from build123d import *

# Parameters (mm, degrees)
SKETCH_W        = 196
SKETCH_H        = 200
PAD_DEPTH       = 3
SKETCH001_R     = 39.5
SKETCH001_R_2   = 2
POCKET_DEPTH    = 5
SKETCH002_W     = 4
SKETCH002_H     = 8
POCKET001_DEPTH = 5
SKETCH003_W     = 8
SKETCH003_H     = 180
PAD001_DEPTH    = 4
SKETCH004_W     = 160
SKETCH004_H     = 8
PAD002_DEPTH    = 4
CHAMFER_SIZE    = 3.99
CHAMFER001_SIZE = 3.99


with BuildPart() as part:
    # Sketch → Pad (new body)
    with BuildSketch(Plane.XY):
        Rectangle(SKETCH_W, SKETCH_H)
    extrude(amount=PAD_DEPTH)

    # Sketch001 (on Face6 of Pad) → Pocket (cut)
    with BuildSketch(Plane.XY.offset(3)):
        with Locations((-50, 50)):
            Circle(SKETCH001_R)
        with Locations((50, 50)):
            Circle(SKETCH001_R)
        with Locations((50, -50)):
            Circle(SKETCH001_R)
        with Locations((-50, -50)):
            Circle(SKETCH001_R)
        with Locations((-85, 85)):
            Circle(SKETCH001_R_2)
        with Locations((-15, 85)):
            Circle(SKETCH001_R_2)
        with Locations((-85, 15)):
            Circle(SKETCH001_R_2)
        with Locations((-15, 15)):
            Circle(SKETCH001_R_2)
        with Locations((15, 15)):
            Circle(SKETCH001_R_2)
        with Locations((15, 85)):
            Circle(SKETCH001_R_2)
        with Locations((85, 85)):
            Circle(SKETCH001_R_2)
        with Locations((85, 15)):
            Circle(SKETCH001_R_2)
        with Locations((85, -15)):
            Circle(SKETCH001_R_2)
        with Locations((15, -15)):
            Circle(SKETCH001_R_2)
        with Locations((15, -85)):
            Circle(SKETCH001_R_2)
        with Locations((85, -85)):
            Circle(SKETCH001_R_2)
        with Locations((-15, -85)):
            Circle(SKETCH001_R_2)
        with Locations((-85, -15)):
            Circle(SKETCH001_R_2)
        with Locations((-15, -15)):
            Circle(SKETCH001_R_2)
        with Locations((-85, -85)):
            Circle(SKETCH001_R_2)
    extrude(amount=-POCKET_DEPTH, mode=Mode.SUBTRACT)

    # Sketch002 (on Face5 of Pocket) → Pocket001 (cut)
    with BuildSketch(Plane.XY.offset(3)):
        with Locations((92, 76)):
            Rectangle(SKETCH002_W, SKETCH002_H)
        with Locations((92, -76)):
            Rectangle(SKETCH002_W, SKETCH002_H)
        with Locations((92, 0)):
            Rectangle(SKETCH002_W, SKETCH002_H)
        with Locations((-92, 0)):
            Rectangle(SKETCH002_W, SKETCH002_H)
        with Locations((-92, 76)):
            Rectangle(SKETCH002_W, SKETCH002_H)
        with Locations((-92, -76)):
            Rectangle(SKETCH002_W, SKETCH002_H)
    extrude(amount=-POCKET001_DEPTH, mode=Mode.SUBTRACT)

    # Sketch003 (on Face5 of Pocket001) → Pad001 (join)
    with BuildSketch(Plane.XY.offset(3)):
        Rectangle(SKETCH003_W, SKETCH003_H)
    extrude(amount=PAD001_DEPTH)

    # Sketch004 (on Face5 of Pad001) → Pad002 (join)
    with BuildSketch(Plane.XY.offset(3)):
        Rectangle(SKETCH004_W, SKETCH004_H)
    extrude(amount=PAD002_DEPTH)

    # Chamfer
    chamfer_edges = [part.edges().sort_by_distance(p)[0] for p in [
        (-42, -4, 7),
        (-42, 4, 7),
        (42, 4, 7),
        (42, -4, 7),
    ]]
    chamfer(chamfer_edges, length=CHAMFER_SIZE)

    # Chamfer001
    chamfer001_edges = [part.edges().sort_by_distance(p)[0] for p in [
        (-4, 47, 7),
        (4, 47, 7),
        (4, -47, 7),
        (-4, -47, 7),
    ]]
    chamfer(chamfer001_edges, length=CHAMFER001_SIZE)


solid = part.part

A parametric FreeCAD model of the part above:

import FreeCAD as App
import Part
import Sketcher
from FreeCAD import Vector


def edges_at(feature, points):
    """Names of the edges that pass closest to the given points."""
    edges = feature.Shape.Edges
    near = lambda p: min(range(len(edges)), key=lambda i: edges[i].distToShape(Part.Vertex(*p))[0])
    return sorted({f"Edge{near(p) + 1}" for p in points})


def add_polygon(sketch, points):
    """Adds a closed chain of lines whose ends are joined by coincident constraints."""
    first, n = sketch.GeometryCount, len(points)
    for a, b in zip(points, points[1:] + points[:1]):
        sketch.addGeometry(Part.LineSegment(App.Vector(*a, 0), App.Vector(*b, 0)), False)
    for i in range(n):
        sketch.addConstraint(Sketcher.Constraint("Coincident", first + i, 2, first + (i + 1) % n, 1))

doc = App.newDocument("Part")
params = doc.addObject("Spreadsheet::Sheet", "Params")
for row, (alias, value) in enumerate([
    ("sketch1_width", "196 mm"),
    ("sketch1_height", "200 mm"),
    ("pad1_length", "3 mm"),
    ("sketch2_diameter", "79 mm"),
    ("sketch2_diameter2", "4 mm"),
    ("pocket1_length", "5 mm"),
    ("sketch3_width", "4 mm"),
    ("sketch3_height", "8 mm"),
    ("pocket2_length", "5 mm"),
    ("sketch4_width", "8 mm"),
    ("sketch4_height", "180 mm"),
    ("pad2_length", "4 mm"),
    ("sketch5_width", "160 mm"),
    ("sketch5_height", "8 mm"),
    ("pad3_length", "4 mm"),
    ("chamfer_size", "3.99 mm"),
    ("chamfer2_size", "3.99 mm"),
], start=1):
    params.set(f"A{row}", alias)
    params.set(f"B{row}", "=" + value)
    params.setAlias(f"B{row}", alias)

body = doc.addObject("PartDesign::Body", "Body")

sketch1 = body.newObject("Sketcher::SketchObject", "Sketch")
sketch1.AttachmentSupport = (doc.getObject("XY_Plane"), [""])
sketch1.MapMode = "FlatFace"
add_polygon(sketch1, [(-98, 100), (-98, -100), (98, -100), (98, 100)])
sketch1.addConstraint([
    Sketcher.Constraint("Vertical", 0),
    Sketcher.Constraint("Horizontal", 1),
    Sketcher.Constraint("Vertical", 2),
    Sketcher.Constraint("Horizontal", 3),
    Sketcher.Constraint("Symmetric", 0, 2, 2, 2, -1, 1),
    Sketcher.Constraint("DistanceX", 1, 1, 1, 2, 196.0),
    Sketcher.Constraint("DistanceY", 0, 2, 0, 1, 200.0),
])
sketch1.setExpression("Constraints[9]", "Params.sketch1_width")
sketch1.setExpression("Constraints[10]", "Params.sketch1_height")
pad1 = body.newObject("PartDesign::Pad", "Pad")
pad1.Profile = sketch1
pad1.setExpression("Length", "Params.pad1_length")

sketch2 = body.newObject("Sketcher::SketchObject", "Sketch001")
sketch2.AttachmentSupport = (doc.getObject("XY_Plane"), [""])
sketch2.MapMode = "FlatFace"
sketch2.AttachmentOffset = App.Placement(Vector(0, 0, 3), App.Rotation())
sketch2.addGeometry([
    Part.Circle(Vector(-50, 50, 0), Vector(0, 0, 1), 39.5),
    Part.Circle(Vector(50, 50, 0), Vector(0, 0, 1), 39.5),
    Part.Circle(Vector(50, -50, 0), Vector(0, 0, 1), 39.5),
    Part.Circle(Vector(-50, -50, 0), Vector(0, 0, 1), 39.5),
    Part.Circle(Vector(-85, 85, 0), Vector(0, 0, 1), 2),
    Part.Circle(Vector(-15, 85, 0), Vector(0, 0, 1), 2),
    Part.Circle(Vector(-85, 15, 0), Vector(0, 0, 1), 2),
    Part.Circle(Vector(-15, 15, 0), Vector(0, 0, 1), 2),
    Part.Circle(Vector(15, 15, 0), Vector(0, 0, 1), 2),
    Part.Circle(Vector(15, 85, 0), Vector(0, 0, 1), 2),
    Part.Circle(Vector(85, 85, 0), Vector(0, 0, 1), 2),
    Part.Circle(Vector(85, 15, 0), Vector(0, 0, 1), 2),
    Part.Circle(Vector(85, -15, 0), Vector(0, 0, 1), 2),
    Part.Circle(Vector(15, -15, 0), Vector(0, 0, 1), 2),
    Part.Circle(Vector(15, -85, 0), Vector(0, 0, 1), 2),
    Part.Circle(Vector(85, -85, 0), Vector(0, 0, 1), 2),
    Part.Circle(Vector(-15, -85, 0), Vector(0, 0, 1), 2),
    Part.Circle(Vector(-85, -15, 0), Vector(0, 0, 1), 2),
    Part.Circle(Vector(-15, -15, 0), Vector(0, 0, 1), 2),
    Part.Circle(Vector(-85, -85, 0), Vector(0, 0, 1), 2),
], False)
sketch2.addConstraint([
    Sketcher.Constraint("Equal", 0, 1),
    Sketcher.Constraint("Equal", 1, 2),
    Sketcher.Constraint("Equal", 2, 3),
    Sketcher.Constraint("Equal", 4, 5),
    Sketcher.Constraint("Equal", 5, 6),
    Sketcher.Constraint("Equal", 6, 7),
    Sketcher.Constraint("Equal", 7, 8),
    Sketcher.Constraint("Equal", 8, 9),
    Sketcher.Constraint("Equal", 9, 10),
    Sketcher.Constraint("Equal", 10, 11),
    Sketcher.Constraint("Equal", 11, 12),
    Sketcher.Constraint("Equal", 12, 13),
    Sketcher.Constraint("Equal", 13, 14),
    Sketcher.Constraint("Equal", 14, 15),
    Sketcher.Constraint("Equal", 15, 16),
    Sketcher.Constraint("Equal", 16, 17),
    Sketcher.Constraint("Equal", 17, 18),
    Sketcher.Constraint("Equal", 18, 19),
    Sketcher.Constraint("Symmetric", 0, 3, 2, 3, -1, 1),
    Sketcher.Constraint("Symmetric", 1, 3, 3, 3, -1, 1),
    Sketcher.Constraint("Symmetric", 6, 3, 12, 3, -1, 1),
    Sketcher.Constraint("Symmetric", 7, 3, 13, 3, -1, 1),
    Sketcher.Constraint("Symmetric", 5, 3, 14, 3, -1, 1),
    Sketcher.Constraint("Symmetric", 4, 3, 15, 3, -1, 1),
    Sketcher.Constraint("Symmetric", 9, 3, 16, 3, -1, 1),
    Sketcher.Constraint("Symmetric", 11, 3, 17, 3, -1, 1),
    Sketcher.Constraint("Symmetric", 8, 3, 18, 3, -1, 1),
    Sketcher.Constraint("Symmetric", 10, 3, 19, 3, -1, 1),
    Sketcher.Constraint("Symmetric", 0, 3, 1, 3, -2),
    Sketcher.Constraint("Symmetric", 7, 3, 8, 3, -2),
    Sketcher.Constraint("Symmetric", 5, 3, 9, 3, -2),
    Sketcher.Constraint("Symmetric", 4, 3, 10, 3, -2),
    Sketcher.Constraint("Symmetric", 6, 3, 11, 3, -2),
    Sketcher.Constraint("Horizontal", 4, 3, 5, 3),
    Sketcher.Constraint("Horizontal", 6, 3, 7, 3),
    Sketcher.Constraint("Vertical", 4, 3, 6, 3),
    Sketcher.Constraint("Vertical", 5, 3, 7, 3),
    Sketcher.Constraint("Diameter", 0, 79.0),
    Sketcher.Constraint("Diameter", 4, 4.0),
    Sketcher.Constraint("DistanceX", 0, 3, -1, 1, 50.0),
    Sketcher.Constraint("DistanceY", -1, 1, 0, 3, 50.0),
    Sketcher.Constraint("DistanceX", 4, 3, -1, 1, 85.0),
    Sketcher.Constraint("DistanceY", -1, 1, 4, 3, 85.0),
    Sketcher.Constraint("DistanceX", 5, 3, -1, 1, 15.0),
    Sketcher.Constraint("DistanceY", -1, 1, 6, 3, 15.0),
])
sketch2.setExpression("Constraints[37]", "Params.sketch2_diameter")
sketch2.setExpression("Constraints[38]", "Params.sketch2_diameter2")
pocket1 = body.newObject("PartDesign::Pocket", "Pocket")
pocket1.Profile = sketch2
pocket1.setExpression("Length", "Params.pocket1_length")

sketch3 = body.newObject("Sketcher::SketchObject", "Sketch002")
sketch3.AttachmentSupport = (doc.getObject("XY_Plane"), [""])
sketch3.MapMode = "FlatFace"
sketch3.AttachmentOffset = App.Placement(Vector(0, 0, 3), App.Rotation())
add_polygon(sketch3, [(90, 80), (90, 72), (94, 72), (94, 80)])
add_polygon(sketch3, [(90, -72), (90, -80), (94, -80), (94, -72)])
add_polygon(sketch3, [(90, 4), (90, -4), (94, -4), (94, 4)])
add_polygon(sketch3, [(-94, 4), (-94, -4), (-90, -4), (-90, 4)])
add_polygon(sketch3, [(-94, 80), (-94, 72), (-90, 72), (-90, 80)])
add_polygon(sketch3, [(-94, -72), (-94, -80), (-90, -80), (-90, -72)])
sketch3.addConstraint([
    Sketcher.Constraint("Vertical", 0),
    Sketcher.Constraint("Horizontal", 1),
    Sketcher.Constraint("Vertical", 2),
    Sketcher.Constraint("Horizontal", 3),
    Sketcher.Constraint("Vertical", 4),
    Sketcher.Constraint("Horizontal", 5),
    Sketcher.Constraint("Vertical", 6),
    Sketcher.Constraint("Horizontal", 7),
    Sketcher.Constraint("Vertical", 8),
    Sketcher.Constraint("Horizontal", 9),
    Sketcher.Constraint("Vertical", 10),
    Sketcher.Constraint("Horizontal", 11),
    Sketcher.Constraint("Vertical", 12),
    Sketcher.Constraint("Horizontal", 13),
    Sketcher.Constraint("Vertical", 14),
    Sketcher.Constraint("Horizontal", 15),
    Sketcher.Constraint("Vertical", 16),
    Sketcher.Constraint("Horizontal", 17),
    Sketcher.Constraint("Vertical", 18),
    Sketcher.Constraint("Horizontal", 19),
    Sketcher.Constraint("Vertical", 20),
    Sketcher.Constraint("Horizontal", 21),
    Sketcher.Constraint("Vertical", 22),
    Sketcher.Constraint("Horizontal", 23),
    Sketcher.Constraint("Symmetric", 10, 2, 12, 2, -1, 1),
    Sketcher.Constraint("Symmetric", 8, 2, 14, 2, -1, 1),
    Sketcher.Constraint("Symmetric", 6, 2, 16, 2, -1, 1),
    Sketcher.Constraint("Symmetric", 4, 2, 18, 2, -1, 1),
    Sketcher.Constraint("Symmetric", 2, 2, 20, 2, -1, 1),
    Sketcher.Constraint("Symmetric", 0, 2, 22, 2, -1, 1),
    Sketcher.Constraint("Symmetric", 1, 2, 16, 2, -2),
    Sketcher.Constraint("Symmetric", 3, 2, 18, 2, -2),
    Sketcher.Constraint("Horizontal", 9, 2, 12, 2),
    Sketcher.Constraint("Vertical", 7, 2, 8, 2),
    Sketcher.Constraint("Vertical", 6, 2, 9, 2),
    Sketcher.Constraint("Equal", 6, 8),
    Sketcher.Constraint("DistanceX", 1, 1, 1, 2, 4.0),
    Sketcher.Constraint("DistanceY", 0, 2, 0, 1, 8.0),
    Sketcher.Constraint("DistanceX", -1, 1, 0, 2, 90.0),
    Sketcher.Constraint("DistanceY", -1, 1, 0, 2, 72.0),
])
sketch3.setExpression("Constraints[60]", "Params.sketch3_width")
sketch3.setExpression("Constraints[61]", "Params.sketch3_height")
pocket2 = body.newObject("PartDesign::Pocket", "Pocket001")
pocket2.Profile = sketch3
pocket2.setExpression("Length", "Params.pocket2_length")

sketch4 = body.newObject("Sketcher::SketchObject", "Sketch003")
sketch4.AttachmentSupport = (doc.getObject("XY_Plane"), [""])
sketch4.MapMode = "FlatFace"
sketch4.AttachmentOffset = App.Placement(Vector(0, 0, 3), App.Rotation())
add_polygon(sketch4, [(-4, 90), (-4, -90), (4, -90), (4, 90)])
sketch4.addConstraint([
    Sketcher.Constraint("Vertical", 0),
    Sketcher.Constraint("Horizontal", 1),
    Sketcher.Constraint("Vertical", 2),
    Sketcher.Constraint("Horizontal", 3),
    Sketcher.Constraint("Symmetric", 0, 2, 2, 2, -1, 1),
    Sketcher.Constraint("DistanceX", 1, 1, 1, 2, 8.0),
    Sketcher.Constraint("DistanceY", 0, 2, 0, 1, 180.0),
])
sketch4.setExpression("Constraints[9]", "Params.sketch4_width")
sketch4.setExpression("Constraints[10]", "Params.sketch4_height")
pad2 = body.newObject("PartDesign::Pad", "Pad001")
pad2.Profile = sketch4
pad2.setExpression("Length", "Params.pad2_length")

sketch5 = body.newObject("Sketcher::SketchObject", "Sketch004")
sketch5.AttachmentSupport = (doc.getObject("XY_Plane"), [""])
sketch5.MapMode = "FlatFace"
sketch5.AttachmentOffset = App.Placement(Vector(0, 0, 3), App.Rotation())
add_polygon(sketch5, [(-80, 4), (-80, -4), (80, -4), (80, 4)])
sketch5.addConstraint([
    Sketcher.Constraint("Vertical", 0),
    Sketcher.Constraint("Horizontal", 1),
    Sketcher.Constraint("Vertical", 2),
    Sketcher.Constraint("Horizontal", 3),
    Sketcher.Constraint("Symmetric", 0, 2, 2, 2, -1, 1),
    Sketcher.Constraint("DistanceX", 1, 1, 1, 2, 160.0),
    Sketcher.Constraint("DistanceY", 0, 2, 0, 1, 8.0),
])
sketch5.setExpression("Constraints[9]", "Params.sketch5_width")
sketch5.setExpression("Constraints[10]", "Params.sketch5_height")
pad3 = body.newObject("PartDesign::Pad", "Pad002")
pad3.Profile = sketch5
pad3.setExpression("Length", "Params.pad3_length")
doc.recompute()

chamfer = body.newObject("PartDesign::Chamfer", "Chamfer")
chamfer.Base = (pad3, edges_at(pad3, [
    (-42, -4, 7),
    (-42, 4, 7),
    (42, 4, 7),
    (42, -4, 7),
]))
chamfer.setExpression("Size", "Params.chamfer_size")
doc.recompute()

chamfer2 = body.newObject("PartDesign::Chamfer", "Chamfer001")
chamfer2.Base = (chamfer, edges_at(chamfer, [
    (-4, 45.005, 7),
    (4, 45.005, 7),
    (4, -45.005, 7),
    (-4, -45.005, 7),
]))
chamfer2.setExpression("Size", "Params.chamfer2_size")

doc.recompute()
